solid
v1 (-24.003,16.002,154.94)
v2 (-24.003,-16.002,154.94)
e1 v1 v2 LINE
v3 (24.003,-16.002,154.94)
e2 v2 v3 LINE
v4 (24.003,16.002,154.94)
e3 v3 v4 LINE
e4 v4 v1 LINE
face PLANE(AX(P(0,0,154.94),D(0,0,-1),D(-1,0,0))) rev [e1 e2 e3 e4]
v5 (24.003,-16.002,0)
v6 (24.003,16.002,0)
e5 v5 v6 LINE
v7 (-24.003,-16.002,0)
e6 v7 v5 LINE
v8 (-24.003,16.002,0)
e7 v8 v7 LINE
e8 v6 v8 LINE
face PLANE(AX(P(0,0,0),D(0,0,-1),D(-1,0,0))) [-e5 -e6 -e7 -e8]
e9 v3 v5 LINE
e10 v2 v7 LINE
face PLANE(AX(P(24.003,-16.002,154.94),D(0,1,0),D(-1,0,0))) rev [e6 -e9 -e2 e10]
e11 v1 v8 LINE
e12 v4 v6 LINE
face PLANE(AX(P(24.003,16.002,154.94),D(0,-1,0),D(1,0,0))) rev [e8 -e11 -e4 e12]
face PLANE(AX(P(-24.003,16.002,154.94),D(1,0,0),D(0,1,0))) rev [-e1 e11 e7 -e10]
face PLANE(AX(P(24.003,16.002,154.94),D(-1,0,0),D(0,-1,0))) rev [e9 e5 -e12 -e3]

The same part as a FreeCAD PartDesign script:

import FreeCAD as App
import Part
import Sketcher
from FreeCAD import Vector
Q = App.Units.Quantity

doc = App.newDocument("Part")
body = doc.addObject("PartDesign::Body", "Body")

# Sketch on XY plane
sketch1 = body.newObject("Sketcher::SketchObject", "Sketch")
sketch1.AttachmentSupport = (doc.getObject("XY_Plane"), [""])
sketch1.MapMode = "FlatFace"
sketch1.addGeometry([
    Part.LineSegment(Vector(-24.003, 16.002, 0), Vector(-24.003, -16.002, 0)),
    Part.LineSegment(Vector(-24.003, -16.002, 0), Vector(24.003, -16.002, 0)),
    Part.LineSegment(Vector(24.003, -16.002, 0), Vector(24.003, 16.002, 0)),
    Part.LineSegment(Vector(24.003, 16.002, 0), Vector(-24.003, 16.002, 0)),
], False)
sketch1.addConstraint([
    Sketcher.Constraint("Coincident", 0, 2, 1, 1),
    Sketcher.Constraint("Coincident", 1, 2, 2, 1),
    Sketcher.Constraint("Coincident", 2, 2, 3, 1),
    Sketcher.Constraint("Coincident", 3, 2, 0, 1),
    Sketcher.Constraint("Vertical", 0),
    Sketcher.Constraint("Horizontal", 1),
    Sketcher.Constraint("Vertical", 2),
    Sketcher.Constraint("Horizontal", 3),
    Sketcher.Constraint("Symmetric", 0, 2, 2, 2, -1, 1),
    Sketcher.Constraint("DistanceX", 1, 1, 1, 2, Q("1.89 in")),
    Sketcher.Constraint("DistanceY", 0, 2, 0, 1, Q("1.26 in")),
])
pad1 = body.newObject("PartDesign::Pad", "Pad")
pad1.Profile = sketch1
pad1.Length = Q("6.1 in")

doc.recompute()
